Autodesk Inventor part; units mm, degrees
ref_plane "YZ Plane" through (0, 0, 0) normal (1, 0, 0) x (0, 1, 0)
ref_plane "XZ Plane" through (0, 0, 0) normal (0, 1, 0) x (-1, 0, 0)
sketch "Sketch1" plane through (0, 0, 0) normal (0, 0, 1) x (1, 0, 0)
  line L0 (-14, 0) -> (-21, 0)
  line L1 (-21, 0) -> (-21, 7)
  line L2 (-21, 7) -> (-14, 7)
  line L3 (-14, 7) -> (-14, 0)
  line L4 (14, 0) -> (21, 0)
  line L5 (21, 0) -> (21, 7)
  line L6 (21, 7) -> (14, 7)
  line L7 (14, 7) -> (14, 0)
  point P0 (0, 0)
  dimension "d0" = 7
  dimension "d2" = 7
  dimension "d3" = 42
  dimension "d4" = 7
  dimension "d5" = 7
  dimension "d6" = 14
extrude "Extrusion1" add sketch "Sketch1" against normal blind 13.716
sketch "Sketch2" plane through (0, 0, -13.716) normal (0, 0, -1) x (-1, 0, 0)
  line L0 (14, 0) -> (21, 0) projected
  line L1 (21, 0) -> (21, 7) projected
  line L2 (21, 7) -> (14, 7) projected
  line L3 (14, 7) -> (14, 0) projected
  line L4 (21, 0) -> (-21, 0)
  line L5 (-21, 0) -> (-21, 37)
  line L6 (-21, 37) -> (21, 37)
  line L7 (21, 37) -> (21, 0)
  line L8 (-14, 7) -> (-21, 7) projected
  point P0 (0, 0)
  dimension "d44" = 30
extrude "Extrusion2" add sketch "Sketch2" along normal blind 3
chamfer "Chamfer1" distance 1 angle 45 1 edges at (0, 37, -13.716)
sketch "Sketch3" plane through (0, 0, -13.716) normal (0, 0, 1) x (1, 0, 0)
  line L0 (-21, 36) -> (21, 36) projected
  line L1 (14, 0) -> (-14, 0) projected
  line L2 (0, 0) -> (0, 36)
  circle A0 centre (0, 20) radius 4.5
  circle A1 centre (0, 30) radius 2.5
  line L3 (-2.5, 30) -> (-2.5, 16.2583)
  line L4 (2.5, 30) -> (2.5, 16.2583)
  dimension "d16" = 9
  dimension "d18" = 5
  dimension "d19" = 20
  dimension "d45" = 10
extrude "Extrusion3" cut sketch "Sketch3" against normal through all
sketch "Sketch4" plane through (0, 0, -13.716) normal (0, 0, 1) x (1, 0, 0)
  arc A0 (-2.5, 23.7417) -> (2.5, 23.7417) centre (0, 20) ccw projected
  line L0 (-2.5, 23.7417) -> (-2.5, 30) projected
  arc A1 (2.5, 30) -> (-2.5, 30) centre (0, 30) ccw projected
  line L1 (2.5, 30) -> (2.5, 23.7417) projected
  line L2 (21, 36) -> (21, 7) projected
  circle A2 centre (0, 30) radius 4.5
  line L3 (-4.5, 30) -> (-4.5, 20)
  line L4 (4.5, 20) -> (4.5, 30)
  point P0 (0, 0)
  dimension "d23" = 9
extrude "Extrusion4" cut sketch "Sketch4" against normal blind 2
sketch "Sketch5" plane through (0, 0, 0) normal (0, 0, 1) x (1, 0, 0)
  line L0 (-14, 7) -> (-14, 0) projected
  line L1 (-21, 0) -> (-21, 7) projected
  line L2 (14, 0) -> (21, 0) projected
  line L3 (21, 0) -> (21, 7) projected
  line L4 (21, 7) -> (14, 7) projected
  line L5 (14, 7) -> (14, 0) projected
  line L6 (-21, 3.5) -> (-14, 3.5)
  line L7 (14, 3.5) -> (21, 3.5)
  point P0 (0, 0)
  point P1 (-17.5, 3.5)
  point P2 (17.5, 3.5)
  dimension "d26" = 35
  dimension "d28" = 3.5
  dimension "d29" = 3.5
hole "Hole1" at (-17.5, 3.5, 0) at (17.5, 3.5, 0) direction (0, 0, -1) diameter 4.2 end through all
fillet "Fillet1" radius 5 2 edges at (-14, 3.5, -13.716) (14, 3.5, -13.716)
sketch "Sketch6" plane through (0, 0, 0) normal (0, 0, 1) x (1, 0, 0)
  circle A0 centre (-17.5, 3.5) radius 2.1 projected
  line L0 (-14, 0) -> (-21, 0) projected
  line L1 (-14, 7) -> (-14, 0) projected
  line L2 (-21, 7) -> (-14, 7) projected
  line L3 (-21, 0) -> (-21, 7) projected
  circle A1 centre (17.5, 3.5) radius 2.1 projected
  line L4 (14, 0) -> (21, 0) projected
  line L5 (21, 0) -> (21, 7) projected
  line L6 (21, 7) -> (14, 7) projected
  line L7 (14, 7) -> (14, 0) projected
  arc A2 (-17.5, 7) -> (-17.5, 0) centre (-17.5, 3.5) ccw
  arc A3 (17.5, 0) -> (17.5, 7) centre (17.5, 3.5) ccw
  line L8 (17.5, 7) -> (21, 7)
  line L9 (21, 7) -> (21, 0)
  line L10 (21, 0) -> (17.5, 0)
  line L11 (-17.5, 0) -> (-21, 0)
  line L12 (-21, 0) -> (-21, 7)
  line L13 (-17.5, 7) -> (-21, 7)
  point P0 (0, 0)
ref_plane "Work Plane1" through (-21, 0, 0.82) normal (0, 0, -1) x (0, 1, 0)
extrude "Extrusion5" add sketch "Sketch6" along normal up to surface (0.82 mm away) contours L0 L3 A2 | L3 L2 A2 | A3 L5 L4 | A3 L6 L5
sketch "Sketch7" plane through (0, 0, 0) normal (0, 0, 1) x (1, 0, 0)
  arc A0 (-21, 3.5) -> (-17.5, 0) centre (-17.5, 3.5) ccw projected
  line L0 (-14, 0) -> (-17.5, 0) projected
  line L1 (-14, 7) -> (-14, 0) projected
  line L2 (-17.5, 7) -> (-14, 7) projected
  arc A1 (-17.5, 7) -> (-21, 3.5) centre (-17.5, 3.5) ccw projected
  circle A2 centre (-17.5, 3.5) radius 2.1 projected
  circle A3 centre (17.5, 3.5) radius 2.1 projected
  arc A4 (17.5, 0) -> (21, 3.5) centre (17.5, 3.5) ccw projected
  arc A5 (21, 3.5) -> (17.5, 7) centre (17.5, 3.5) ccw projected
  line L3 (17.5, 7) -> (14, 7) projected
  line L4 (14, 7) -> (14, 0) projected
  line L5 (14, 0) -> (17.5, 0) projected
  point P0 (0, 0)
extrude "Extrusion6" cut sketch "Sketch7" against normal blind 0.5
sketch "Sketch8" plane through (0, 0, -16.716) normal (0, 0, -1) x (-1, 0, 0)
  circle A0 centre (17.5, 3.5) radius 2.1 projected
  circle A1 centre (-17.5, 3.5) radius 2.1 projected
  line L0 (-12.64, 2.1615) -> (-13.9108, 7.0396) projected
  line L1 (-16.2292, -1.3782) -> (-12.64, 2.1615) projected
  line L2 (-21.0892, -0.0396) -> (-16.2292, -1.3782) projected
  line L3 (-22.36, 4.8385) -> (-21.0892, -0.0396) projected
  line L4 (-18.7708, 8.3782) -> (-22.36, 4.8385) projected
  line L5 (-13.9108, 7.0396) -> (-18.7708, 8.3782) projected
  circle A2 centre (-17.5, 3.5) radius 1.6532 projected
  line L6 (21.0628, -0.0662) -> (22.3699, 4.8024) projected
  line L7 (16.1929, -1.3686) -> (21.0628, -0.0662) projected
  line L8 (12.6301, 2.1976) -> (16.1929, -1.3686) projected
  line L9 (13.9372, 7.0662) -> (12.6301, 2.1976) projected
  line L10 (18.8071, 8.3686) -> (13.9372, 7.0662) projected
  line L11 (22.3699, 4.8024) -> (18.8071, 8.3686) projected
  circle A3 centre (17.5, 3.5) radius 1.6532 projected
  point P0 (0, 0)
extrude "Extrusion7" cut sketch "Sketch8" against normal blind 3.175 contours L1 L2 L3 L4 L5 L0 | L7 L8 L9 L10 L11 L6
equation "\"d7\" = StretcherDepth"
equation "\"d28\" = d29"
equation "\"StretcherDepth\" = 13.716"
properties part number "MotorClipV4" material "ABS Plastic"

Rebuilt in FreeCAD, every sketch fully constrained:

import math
import FreeCAD as App
import Part
import Sketcher

V = App.Vector
Q = App.Units.Quantity


def edges_at(feature, points):
    """Names of the edges that pass closest to the given points."""
    edges = feature.Shape.Edges
    near = lambda p: min(range(len(edges)), key=lambda i: edges[i].distToShape(Part.Vertex(*p))[0])
    return sorted({f"Edge{near(p) + 1}" for p in points})


def add_polygon(sketch, points):
    """Adds a closed chain of lines whose ends are joined by coincident constraints."""
    first, n = sketch.GeometryCount, len(points)
    for a, b in zip(points, points[1:] + points[:1]):
        sketch.addGeometry(Part.LineSegment(App.Vector(*a, 0), App.Vector(*b, 0)), False)
    for i in range(n):
        sketch.addConstraint(Sketcher.Constraint("Coincident", first + i, 2, first + (i + 1) % n, 1))

doc = App.newDocument("Part")
body = doc.addObject("PartDesign::Body", "Body")
body.AllowCompound = True

# Sketch on XY plane
sketch1 = body.newObject("Sketcher::SketchObject", "Sketch")
sketch1.AttachmentSupport = (doc.getObject("XY_Plane"), [""])
sketch1.MapMode = "FlatFace"
add_polygon(sketch1, [(-21, 0), (-14, 0), (-14, 7), (-21, 7)])  # lines 0-3
add_polygon(sketch1, [(14, 7), (14, 0), (21, 0), (21, 7)])  # lines 4-7
sketch1.addConstraint(Sketcher.Constraint("Horizontal", 0))
sketch1.addConstraint(Sketcher.Constraint("Vertical", 1))
sketch1.addConstraint(Sketcher.Constraint("Horizontal", 2))
sketch1.addConstraint(Sketcher.Constraint("Vertical", 3))
sketch1.addConstraint(Sketcher.Constraint("Vertical", 4))
sketch1.addConstraint(Sketcher.Constraint("Horizontal", 5))
sketch1.addConstraint(Sketcher.Constraint("Vertical", 6))
sketch1.addConstraint(Sketcher.Constraint("Horizontal", 7))
sketch1.addConstraint(Sketcher.Constraint("Symmetric", 0, 2, 4, 2, -1, 1))
sketch1.addConstraint(Sketcher.Constraint("Symmetric", 3, 2, 5, 2, -2))
sketch1.addConstraint(Sketcher.Constraint("Horizontal", 2, 2, 6, 2))
sketch1.addConstraint(Sketcher.Constraint("Equal", 7, 1))
sketch1.addConstraint(Sketcher.Constraint("DistanceX", 0, 1, 0, 2, 7.0))
sketch1.addConstraint(Sketcher.Constraint("DistanceX", 0, 2, -1, 1, 14.0))
pad1 = body.newObject("PartDesign::Pad", "Pad")
pad1.Profile = sketch1
pad1.Length = 13.716
pad1.Reversed = True

# Sketch on XY plane
sketch2 = body.newObject("Sketcher::SketchObject", "Sketch001")
sketch2.AttachmentSupport = (doc.getObject("XY_Plane"), [""])
sketch2.MapMode = "FlatFace"
sketch2.AttachmentOffset = App.Placement(V(0, 0, -13.716), App.Rotation())
add_polygon(sketch2, [(-21, 0), (-21, 37), (21, 37), (21, 0)])  # lines 0-3
sketch2.addConstraint(Sketcher.Constraint("Vertical", 0))
sketch2.addConstraint(Sketcher.Constraint("Horizontal", 1))
sketch2.addConstraint(Sketcher.Constraint("Vertical", 2))
sketch2.addConstraint(Sketcher.Constraint("Horizontal", 3))
sketch2.addConstraint(Sketcher.Constraint("Symmetric", 2, 2, 3, 2, -1, 1))
sketch2.addConstraint(Sketcher.Constraint("DistanceX", 1, 1, 1, 2, 42.0))
sketch2.addConstraint(Sketcher.Constraint("DistanceY", 0, 1, 0, 2, 37.0))
pad2 = body.newObject("PartDesign::Pad", "Pad001")
pad2.Profile = sketch2
pad2.Length = 3
pad2.Reversed = True
doc.recompute()

chamfer = body.newObject("PartDesign::Chamfer", "Chamfer")
chamfer.Base = (pad2, edges_at(pad2, [(0, 37, -13.716)]))
chamfer.Size = 1

# Sketch on XY plane
sketch3 = body.newObject("Sketcher::SketchObject", "Sketch002")
sketch3.AttachmentSupport = (doc.getObject("XY_Plane"), [""])
sketch3.MapMode = "FlatFace"
sketch3.AttachmentOffset = App.Placement(V(0, 0, -13.716), App.Rotation())
sketch3.addGeometry(Part.LineSegment(V(2.5, 23.741657, 0), V(2.5, 30, 0)), False)
sketch3.addGeometry(Part.ArcOfCircle(Part.Circle(V(0, 30, 0), V(0, 0, 1), 2.5), math.radians(0), math.radians(180)), False)
sketch3.addGeometry(Part.LineSegment(V(-2.5, 30, 0), V(-2.5, 23.741657, 0)), False)
sketch3.addGeometry(Part.ArcOfCircle(Part.Circle(V(0, 20, 0), V(0, 0, 1), 4.5), math.radians(123.748989), math.radians(416.251011)), False)
sketch3.addConstraint(Sketcher.Constraint("Tangent", 0, 2, 1, 1))
sketch3.addConstraint(Sketcher.Constraint("Tangent", 1, 2, 2, 1))
sketch3.addConstraint(Sketcher.Constraint("Coincident", 2, 2, 3, 1))
sketch3.addConstraint(Sketcher.Constraint("Coincident", 3, 2, 0, 1))
sketch3.addConstraint(Sketcher.Constraint("Vertical", 0))
sketch3.addConstraint(Sketcher.Constraint("Vertical", 2))
sketch3.addConstraint(Sketcher.Constraint("Symmetric", 2, 2, 3, 2, -2))
sketch3.addConstraint(Sketcher.Constraint("Radius", 1, 2.5))
sketch3.addConstraint(Sketcher.Constraint("Radius", 3, 4.5))
sketch3.addConstraint(Sketcher.Constraint("DistanceY", -1, 1, 3, 3, 20.0))
sketch3.addConstraint(Sketcher.Constraint("DistanceY", 3, 3, 1, 3, 10.0))
pocket1 = body.newObject("PartDesign::Pocket", "Pocket")
pocket1.Profile = sketch3
pocket1.Type = "ThroughAll"

# Sketch on XY plane
sketch4 = body.newObject("Sketcher::SketchObject", "Sketch003")
sketch4.AttachmentSupport = (doc.getObject("XY_Plane"), [""])
sketch4.MapMode = "FlatFace"
sketch4.AttachmentOffset = App.Placement(V(0, 0, -13.716), App.Rotation())
sketch4.addGeometry(Part.ArcOfCircle(Part.Circle(V(0, 20, 0), V(0, 0, 1), 4.500035), math.radians(180), math.radians(360)), False)
sketch4.addGeometry(Part.LineSegment(V(4.5, 20, 0), V(4.5, 30, 0)), False)
sketch4.addGeometry(Part.ArcOfCircle(Part.Circle(V(0, 30, 0), V(0, 0, 1), 4.5), math.radians(0), math.radians(180)), False)
sketch4.addGeometry(Part.LineSegment(V(-4.5, 30, 0), V(-4.5, 20, 0)), False)
sketch4.addConstraint(Sketcher.Constraint("Tangent", 0, 2, 1, 1))
sketch4.addConstraint(Sketcher.Constraint("Tangent", 1, 2, 2, 1))
sketch4.addConstraint(Sketcher.Constraint("Tangent", 2, 2, 3, 1))
sketch4.addConstraint(Sketcher.Constraint("Tangent", 3, 2, 0, 1))
sketch4.addConstraint(Sketcher.Constraint("Vertical", 1))
sketch4.addConstraint(Sketcher.Constraint("Vertical", 3))
sketch4.addConstraint(Sketcher.Constraint("PointOnObject", 0, 3, -2))
sketch4.addConstraint(Sketcher.Constraint("Radius", 0, 4.5))
sketch4.addConstraint(Sketcher.Constraint("DistanceY", 1, 1, 1, 2, 10.0))
sketch4.addConstraint(Sketcher.Constraint("DistanceY", -1, 1, 0, 3, 20.0))
pocket2 = body.newObject("PartDesign::Pocket", "Pocket001")
pocket2.Profile = sketch4
pocket2.Length = 2

# Sketch on XY plane
sketch5 = body.newObject("Sketcher::SketchObject", "Sketch004")
sketch5.AttachmentSupport = (doc.getObject("XY_Plane"), [""])
sketch5.MapMode = "FlatFace"
sketch5.addGeometry(Part.Circle(V(-17.5, 3.5, 0), V(0, 0, 1), 2.1), False)
sketch5.addGeometry(Part.Circle(V(17.5, 3.5, 0), V(0, 0, 1), 2.1), False)
sketch5.addConstraint(Sketcher.Constraint("Equal", 0, 1))
sketch5.addConstraint(Sketcher.Constraint("Symmetric", 0, 3, 1, 3, -2))
sketch5.addConstraint(Sketcher.Constraint("Diameter", 0, 4.2))
sketch5.addConstraint(Sketcher.Constraint("DistanceX", 0, 3, 1, 3, 35.0))
sketch5.addConstraint(Sketcher.Constraint("DistanceY", -1, 1, 0, 3, 3.5))
doc.recompute()
hole = body.newObject("PartDesign::Hole", "Hole")
hole.Profile = sketch5
hole.ThreadType = "None"
hole.Diameter = 4.2
hole.DepthType = "ThroughAll"
doc.recompute()

fillet = body.newObject("PartDesign::Fillet", "Fillet")
fillet.Base = (hole, edges_at(hole, [(-14, 3.5, -13.716), (14, 3.5, -13.716)]))
fillet.Radius = 5

# Sketch on XY plane
sketch6 = body.newObject("Sketcher::SketchObject", "Sketch005")
sketch6.AttachmentSupport = (doc.getObject("XY_Plane"), [""])
sketch6.MapMode = "FlatFace"
sketch6.addGeometry(Part.LineSegment(V(-21, 0, 0), V(-17.5, 0, 0)), False)
sketch6.addGeometry(Part.ArcOfCircle(Part.Circle(V(-17.5, 3.5, 0), V(0, 0, 1), 3.5), math.radians(180), math.radians(270)), False)
sketch6.addGeometry(Part.LineSegment(V(-21, 3.5, 0), V(-21, 0, 0)), False)
sketch6.addGeometry(Part.LineSegment(V(-21, 7, 0), V(-21, 3.5, 0)), False)
sketch6.addGeometry(Part.ArcOfCircle(Part.Circle(V(-17.5, 3.5, 0), V(0, 0, 1), 3.5), math.radians(90), math.radians(180)), False)
sketch6.addGeometry(Part.LineSegment(V(-17.5, 7, 0), V(-21, 7, 0)), False)
sketch6.addGeometry(Part.ArcOfCircle(Part.Circle(V(17.5, 3.5, 0), V(0, 0, 1), 3.5), math.radians(-90), math.radians(0)), False)
sketch6.addGeometry(Part.LineSegment(V(17.5, 0, 0), V(21, 0, 0)), False)
sketch6.addGeometry(Part.LineSegment(V(21, 0, 0), V(21, 3.5, 0)), False)
sketch6.addGeometry(Part.ArcOfCircle(Part.Circle(V(17.5, 3.5, 0), V(0, 0, 1), 3.5), math.radians(0), math.radians(90)), False)
sketch6.addGeometry(Part.LineSegment(V(21, 3.5, 0), V(21, 7, 0)), False)
sketch6.addGeometry(Part.LineSegment(V(21, 7, 0), V(17.5, 7, 0)), False)
sketch6.addConstraint(Sketcher.Constraint("Tangent", 0, 2, 1, 2))
sketch6.addConstraint(Sketcher.Constraint("Tangent", 1, 1, 2, 1))
sketch6.addConstraint(Sketcher.Constraint("Coincident", 2, 2, 0, 1))
sketch6.addConstraint(Sketcher.Constraint("Tangent", 3, 2, 4, 2))
sketch6.addConstraint(Sketcher.Constraint("Tangent", 4, 1, 5, 1))
sketch6.addConstraint(Sketcher.Constraint("Coincident", 5, 2, 3, 1))
sketch6.addConstraint(Sketcher.Constraint("Tangent", 6, 1, 7, 1))
sketch6.addConstraint(Sketcher.Constraint("Coincident", 7, 2, 8, 1))
sketch6.addConstraint(Sketcher.Constraint("Tangent", 8, 2, 6, 2))
sketch6.addConstraint(Sketcher.Constraint("Tangent", 9, 1, 10, 1))
sketch6.addConstraint(Sketcher.Constraint("Coincident", 10, 2, 11, 1))
sketch6.addConstraint(Sketcher.Constraint("Tangent", 11, 2, 9, 2))
sketch6.addConstraint(Sketcher.Constraint("Horizontal", 0))
sketch6.addConstraint(Sketcher.Constraint("Vertical", 2))
sketch6.addConstraint(Sketcher.Constraint("Vertical", 3))
sketch6.addConstraint(Sketcher.Constraint("Horizontal", 5))
sketch6.addConstraint(Sketcher.Constraint("Horizontal", 7))
sketch6.addConstraint(Sketcher.Constraint("Vertical", 8))
sketch6.addConstraint(Sketcher.Constraint("Vertical", 10))
sketch6.addConstraint(Sketcher.Constraint("Horizontal", 11))
sketch6.addConstraint(Sketcher.Constraint("Coincident", 4, 3, 1, 3))
sketch6.addConstraint(Sketcher.Constraint("Coincident", 9, 3, 6, 3))
sketch6.addConstraint(Sketcher.Constraint("Equal", 1, 4))
sketch6.addConstraint(Sketcher.Constraint("Equal", 4, 6))
sketch6.addConstraint(Sketcher.Constraint("Equal", 6, 9))
sketch6.addConstraint(Sketcher.Constraint("Symmetric", 0, 2, 6, 1, -1, 1))
sketch6.addConstraint(Sketcher.Constraint("PointOnObject", 0, 2, -1))
sketch6.addConstraint(Sketcher.Constraint("Radius", 1, 3.5))
sketch6.addConstraint(Sketcher.Constraint("DistanceX", 1, 1, -1, 1, 21.0))
pad3 = body.newObject("PartDesign::Pad", "Pad002")
pad3.Profile = sketch6
pad3.Length = 0.82

# Sketch on XY plane
sketch7 = body.newObject("Sketcher::SketchObject", "Sketch006")
sketch7.AttachmentSupport = (doc.getObject("XY_Plane"), [""])
sketch7.MapMode = "FlatFace"
sketch7.addGeometry(Part.ArcOfCircle(Part.Circle(V(-17.5, 3.5, 0), V(0, 0, 1), 3.5), math.radians(90), math.radians(270)), False)
sketch7.addGeometry(Part.LineSegment(V(-17.5, 0, 0), V(-14, 0, 0)), False)
sketch7.addGeometry(Part.LineSegment(V(-14, 0, 0), V(-14, 7, 0)), False)
sketch7.addGeometry(Part.LineSegment(V(-14, 7, 0), V(-17.5, 7, 0)), False)
sketch7.addGeometry(Part.Circle(V(-17.5, 3.5, 0), V(0, 0, 1), 2.1), False)
sketch7.addGeometry(Part.LineSegment(V(14, 0, 0), V(17.5, 0, 0)), False)
sketch7.addGeometry(Part.ArcOfCircle(Part.Circle(V(17.5, 3.5, 0), V(0, 0, 1), 3.5), math.radians(-90), math.radians(90)), False)
sketch7.addGeometry(Part.LineSegment(V(17.5, 7, 0), V(14, 7, 0)), False)
sketch7.addGeometry(Part.LineSegment(V(14, 7, 0), V(14, 0, 0)), False)
sketch7.addGeometry(Part.Circle(V(17.5, 3.5, 0), V(0, 0, 1), 2.1), False)
sketch7.addConstraint(Sketcher.Constraint("Tangent", 0, 2, 1, 1))
sketch7.addConstraint(Sketcher.Constraint("Coincident", 1, 2, 2, 1))
sketch7.addConstraint(Sketcher.Constraint("Coincident", 2, 2, 3, 1))
sketch7.addConstraint(Sketcher.Constraint("Tangent", 3, 2, 0, 1))
sketch7.addConstraint(Sketcher.Constraint("Tangent", 5, 2, 6, 1))
sketch7.addConstraint(Sketcher.Constraint("Tangent", 6, 2, 7, 1))
sketch7.addConstraint(Sketcher.Constraint("Coincident", 7, 2, 8, 1))
sketch7.addConstraint(Sketcher.Constraint("Coincident", 8, 2, 5, 1))
sketch7.addConstraint(Sketcher.Constraint("Horizontal", 1))
sketch7.addConstraint(Sketcher.Constraint("Vertical", 2))
sketch7.addConstraint(Sketcher.Constraint("Horizontal", 3))
sketch7.addConstraint(Sketcher.Constraint("Horizontal", 5))
sketch7.addConstraint(Sketcher.Constraint("Horizontal", 7))
sketch7.addConstraint(Sketcher.Constraint("Vertical", 8))
sketch7.addConstraint(Sketcher.Constraint("Coincident", 4, 3, 0, 3))
sketch7.addConstraint(Sketcher.Constraint("Coincident", 9, 3, 6, 3))
sketch7.addConstraint(Sketcher.Constraint("Equal", 0, 6))
sketch7.addConstraint(Sketcher.Constraint("Equal", 4, 9))
sketch7.addConstraint(Sketcher.Constraint("Symmetric", 0, 2, 5, 2, -1, 1))
sketch7.addConstraint(Sketcher.Constraint("Symmetric", 2, 2, 7, 2, -2))
sketch7.addConstraint(Sketcher.Constraint("Diameter", 4, 4.2))
sketch7.addConstraint(Sketcher.Constraint("Radius", 0, 3.5))
sketch7.addConstraint(Sketcher.Constraint("DistanceX", 1, 1, 1, 2, 3.5))
sketch7.addConstraint(Sketcher.Constraint("DistanceX", 1, 2, -1, 1, 14.0))
pocket3 = body.newObject("PartDesign::Pocket", "Pocket002")
pocket3.Profile = sketch7
pocket3.Length = 0.5

# Sketch on XY plane
sketch8 = body.newObject("Sketcher::SketchObject", "Sketch007")
sketch8.AttachmentSupport = (doc.getObject("XY_Plane"), [""])
sketch8.MapMode = "FlatFace"
sketch8.AttachmentOffset = App.Placement(V(0, 0, -16.716), App.Rotation())
add_polygon(sketch8, [(16.2292, -1.3782), (12.64, 2.1615), (13.9108, 7.0396), (18.7708, 8.3782), (22.36, 4.8385), (21.0892, -0.0396)])  # lines 0-5
sketch8.addGeometry(Part.Circle(V(17.5, 3.5, 0), V(0, 0, 1), 2.1), False)  # 6
add_polygon(sketch8, [(-16.1929, -1.3686), (-21.0628, -0.0662), (-22.3699, 4.8024), (-18.8071, 8.3686), (-13.9372, 7.0662), (-12.6301, 2.1976)])  # lines 7-12
sketch8.addGeometry(Part.Circle(V(-17.5, 3.5, 0), V(0, 0, 1), 2.1), False)  # 13
sketch8.addConstraint(Sketcher.Constraint("Equal", 6, 13))
sketch8.addConstraint(Sketcher.Constraint("Symmetric", 6, 3, 13, 3, -2))
sketch8.addConstraint(Sketcher.Constraint("Parallel", 0, 3))
sketch8.addConstraint(Sketcher.Constraint("Parallel", 1, 4))
sketch8.addConstraint(Sketcher.Constraint("Parallel", 2, 5))
sketch8.addConstraint(Sketcher.Constraint("Parallel", 7, 10))
sketch8.addConstraint(Sketcher.Constraint("Parallel", 8, 11))
sketch8.addConstraint(Sketcher.Constraint("Parallel", 9, 12))
sketch8.addConstraint(Sketcher.Constraint("Equal", 0, 1))
sketch8.addConstraint(Sketcher.Constraint("Equal", 1, 2))
sketch8.addConstraint(Sketcher.Constraint("Equal", 2, 3))
sketch8.addConstraint(Sketcher.Constraint("Equal", 5, 7))
sketch8.addConstraint(Sketcher.Constraint("Equal", 7, 8))
sketch8.addConstraint(Sketcher.Constraint("Equal", 8, 9))
sketch8.addConstraint(Sketcher.Constraint("Equal", 9, 10))
sketch8.addConstraint(Sketcher.Constraint("Diameter", 6, 4.2))
sketch8.addConstraint(Sketcher.Constraint("Angle", 2, Q("15.3993 deg")))
sketch8.addConstraint(Sketcher.Constraint("DistanceX", 13, 3, 6, 3, 35.0))
sketch8.addConstraint(Sketcher.Constraint("DistanceY", -1, 1, 6, 3, 3.5))
sketch8.addConstraint(Sketcher.Constraint("DistanceX", -1, 1, 0, 2, 12.64))
sketch8.addConstraint(Sketcher.Constraint("DistanceX", -1, 1, 3, 2, 22.36))
sketch8.addConstraint(Sketcher.Constraint("DistanceX", 8, 2, -1, 1, 22.37))
sketch8.addConstraint(Sketcher.Constraint("DistanceX", 11, 2, -1, 1, 12.63))
sketch8.addConstraint(Sketcher.Constraint("DistanceX", 1, 2, 2, 2, 4.86))
sketch8.addConstraint(Sketcher.Constraint("DistanceX", 9, 2, 10, 2, 4.87))
sketch8.addConstraint(Sketcher.Constraint("DistanceX", 9, 2, -1, 1, 18.807))
sketch8.addConstraint(Sketcher.Constraint("DistanceY", 0, 2, 1, 2, 4.878))
sketch8.addConstraint(Sketcher.Constraint("DistanceY", 5, 2, 7, 2, 1.312))
sketch8.addConstraint(Sketcher.Constraint("DistanceY", -1, 1, 0, 2, 2.1615))
pocket4 = body.newObject("PartDesign::Pocket", "Pocket003")
pocket4.Profile = sketch8
pocket4.Length = 3.175
pocket4.Reversed = True

doc.recompute()
